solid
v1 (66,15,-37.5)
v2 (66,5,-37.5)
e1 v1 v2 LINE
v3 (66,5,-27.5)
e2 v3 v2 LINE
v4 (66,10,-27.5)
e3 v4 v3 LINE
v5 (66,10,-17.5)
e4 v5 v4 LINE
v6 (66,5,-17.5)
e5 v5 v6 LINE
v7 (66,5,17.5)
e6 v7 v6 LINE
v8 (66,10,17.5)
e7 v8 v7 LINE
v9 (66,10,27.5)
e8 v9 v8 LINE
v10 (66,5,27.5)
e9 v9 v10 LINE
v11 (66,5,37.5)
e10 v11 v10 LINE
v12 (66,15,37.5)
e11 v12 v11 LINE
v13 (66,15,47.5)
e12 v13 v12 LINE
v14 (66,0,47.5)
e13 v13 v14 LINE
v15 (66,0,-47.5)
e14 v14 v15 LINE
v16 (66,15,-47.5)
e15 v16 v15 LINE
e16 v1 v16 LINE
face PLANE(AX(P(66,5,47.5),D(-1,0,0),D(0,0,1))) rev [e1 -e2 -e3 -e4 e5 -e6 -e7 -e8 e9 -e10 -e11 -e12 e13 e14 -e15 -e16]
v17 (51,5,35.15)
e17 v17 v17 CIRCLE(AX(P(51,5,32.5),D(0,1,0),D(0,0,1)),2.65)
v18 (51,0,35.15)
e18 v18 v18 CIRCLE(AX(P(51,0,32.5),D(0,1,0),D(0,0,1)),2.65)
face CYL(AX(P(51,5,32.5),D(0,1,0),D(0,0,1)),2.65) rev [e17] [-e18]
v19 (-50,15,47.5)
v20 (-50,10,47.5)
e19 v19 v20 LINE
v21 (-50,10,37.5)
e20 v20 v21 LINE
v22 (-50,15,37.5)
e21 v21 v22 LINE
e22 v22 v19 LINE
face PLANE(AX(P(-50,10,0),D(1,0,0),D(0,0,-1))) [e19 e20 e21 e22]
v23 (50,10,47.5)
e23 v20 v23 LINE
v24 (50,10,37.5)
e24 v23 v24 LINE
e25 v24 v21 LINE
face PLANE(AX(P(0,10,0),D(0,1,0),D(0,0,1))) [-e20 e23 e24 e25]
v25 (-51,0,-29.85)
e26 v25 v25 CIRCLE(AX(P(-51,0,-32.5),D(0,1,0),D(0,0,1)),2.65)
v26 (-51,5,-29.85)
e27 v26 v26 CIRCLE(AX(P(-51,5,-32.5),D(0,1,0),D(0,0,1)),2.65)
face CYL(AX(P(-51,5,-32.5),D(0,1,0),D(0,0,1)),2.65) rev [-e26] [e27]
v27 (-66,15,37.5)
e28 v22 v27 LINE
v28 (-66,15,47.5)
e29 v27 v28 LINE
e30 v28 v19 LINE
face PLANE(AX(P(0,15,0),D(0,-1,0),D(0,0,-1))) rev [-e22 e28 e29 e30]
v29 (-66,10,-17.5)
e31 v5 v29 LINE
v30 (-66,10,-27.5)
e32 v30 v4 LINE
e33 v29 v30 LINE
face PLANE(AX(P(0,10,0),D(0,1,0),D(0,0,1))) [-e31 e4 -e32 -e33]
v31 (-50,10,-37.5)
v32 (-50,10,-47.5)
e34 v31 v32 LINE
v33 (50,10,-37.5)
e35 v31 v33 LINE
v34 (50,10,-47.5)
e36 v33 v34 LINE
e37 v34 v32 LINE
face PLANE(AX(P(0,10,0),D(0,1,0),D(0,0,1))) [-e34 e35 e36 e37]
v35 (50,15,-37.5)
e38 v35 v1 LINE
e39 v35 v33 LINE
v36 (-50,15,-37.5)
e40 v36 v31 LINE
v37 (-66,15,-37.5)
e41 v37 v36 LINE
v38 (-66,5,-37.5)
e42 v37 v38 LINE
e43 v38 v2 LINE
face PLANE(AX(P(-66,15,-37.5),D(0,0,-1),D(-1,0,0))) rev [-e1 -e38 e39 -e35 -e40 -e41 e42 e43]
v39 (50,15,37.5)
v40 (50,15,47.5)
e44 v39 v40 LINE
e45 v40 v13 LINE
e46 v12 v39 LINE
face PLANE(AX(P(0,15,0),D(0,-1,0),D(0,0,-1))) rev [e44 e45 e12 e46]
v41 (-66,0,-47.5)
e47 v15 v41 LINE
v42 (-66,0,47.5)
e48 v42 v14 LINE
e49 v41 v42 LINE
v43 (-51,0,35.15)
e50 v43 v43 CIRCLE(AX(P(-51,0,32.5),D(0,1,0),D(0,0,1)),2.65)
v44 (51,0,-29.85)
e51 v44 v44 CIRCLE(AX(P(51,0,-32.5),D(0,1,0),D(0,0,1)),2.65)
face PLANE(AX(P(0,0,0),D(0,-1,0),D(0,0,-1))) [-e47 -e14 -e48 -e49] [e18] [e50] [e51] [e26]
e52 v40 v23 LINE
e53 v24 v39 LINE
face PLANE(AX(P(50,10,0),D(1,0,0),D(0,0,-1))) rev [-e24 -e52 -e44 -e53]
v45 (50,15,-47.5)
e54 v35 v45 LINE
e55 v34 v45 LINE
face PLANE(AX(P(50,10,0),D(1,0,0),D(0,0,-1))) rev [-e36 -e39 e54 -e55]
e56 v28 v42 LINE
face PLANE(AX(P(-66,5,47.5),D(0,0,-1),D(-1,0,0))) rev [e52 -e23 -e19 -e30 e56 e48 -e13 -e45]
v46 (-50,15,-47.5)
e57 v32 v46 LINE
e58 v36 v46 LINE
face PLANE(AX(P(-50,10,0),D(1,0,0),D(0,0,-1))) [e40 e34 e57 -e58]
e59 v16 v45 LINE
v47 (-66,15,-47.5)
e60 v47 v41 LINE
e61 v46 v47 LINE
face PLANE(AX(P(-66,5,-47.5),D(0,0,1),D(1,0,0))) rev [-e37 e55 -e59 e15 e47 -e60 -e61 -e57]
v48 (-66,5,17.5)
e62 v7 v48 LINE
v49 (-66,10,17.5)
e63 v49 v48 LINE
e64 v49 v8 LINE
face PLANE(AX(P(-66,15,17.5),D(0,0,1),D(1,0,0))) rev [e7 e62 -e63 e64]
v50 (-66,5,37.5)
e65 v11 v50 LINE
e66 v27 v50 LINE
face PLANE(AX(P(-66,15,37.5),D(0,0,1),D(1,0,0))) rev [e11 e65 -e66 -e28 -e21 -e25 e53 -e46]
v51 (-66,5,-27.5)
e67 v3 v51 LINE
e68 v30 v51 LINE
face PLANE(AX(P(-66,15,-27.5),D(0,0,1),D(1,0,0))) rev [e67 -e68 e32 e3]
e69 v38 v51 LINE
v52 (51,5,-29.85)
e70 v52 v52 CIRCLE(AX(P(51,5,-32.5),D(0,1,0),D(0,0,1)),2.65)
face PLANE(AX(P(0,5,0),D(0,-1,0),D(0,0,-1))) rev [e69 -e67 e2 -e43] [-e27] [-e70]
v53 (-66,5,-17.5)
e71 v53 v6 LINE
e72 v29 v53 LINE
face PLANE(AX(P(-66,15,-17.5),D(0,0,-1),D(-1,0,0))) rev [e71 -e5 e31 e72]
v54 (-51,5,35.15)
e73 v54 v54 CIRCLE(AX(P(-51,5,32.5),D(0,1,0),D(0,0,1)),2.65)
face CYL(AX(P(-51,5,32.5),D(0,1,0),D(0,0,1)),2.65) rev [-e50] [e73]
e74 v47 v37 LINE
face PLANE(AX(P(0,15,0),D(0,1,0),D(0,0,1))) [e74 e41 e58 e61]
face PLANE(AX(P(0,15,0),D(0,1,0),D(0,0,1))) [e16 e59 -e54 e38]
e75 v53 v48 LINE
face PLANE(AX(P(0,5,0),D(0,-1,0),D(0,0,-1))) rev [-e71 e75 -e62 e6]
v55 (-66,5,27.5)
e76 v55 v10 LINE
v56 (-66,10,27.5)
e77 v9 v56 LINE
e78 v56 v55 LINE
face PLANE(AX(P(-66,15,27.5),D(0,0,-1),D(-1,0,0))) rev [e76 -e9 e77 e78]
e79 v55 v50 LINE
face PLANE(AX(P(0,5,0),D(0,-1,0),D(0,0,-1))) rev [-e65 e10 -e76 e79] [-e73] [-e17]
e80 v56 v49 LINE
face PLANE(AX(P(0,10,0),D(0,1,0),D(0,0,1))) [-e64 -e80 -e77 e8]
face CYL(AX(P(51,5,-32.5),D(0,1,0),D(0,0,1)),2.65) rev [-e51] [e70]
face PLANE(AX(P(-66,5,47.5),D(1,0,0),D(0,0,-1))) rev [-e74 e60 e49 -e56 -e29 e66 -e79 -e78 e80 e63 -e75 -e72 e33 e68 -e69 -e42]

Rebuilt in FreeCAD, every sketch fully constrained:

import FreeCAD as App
import Part
import Sketcher
Q = App.Units.Quantity


def add_polygon(sketch, points):
    """Adds a closed chain of lines whose ends are joined by coincident constraints."""
    first, n = sketch.GeometryCount, len(points)
    for a, b in zip(points, points[1:] + points[:1]):
        sketch.addGeometry(Part.LineSegment(App.Vector(*a, 0), App.Vector(*b, 0)), False)
    for i in range(n):
        sketch.addConstraint(Sketcher.Constraint("Coincident", first + i, 2, first + (i + 1) % n, 1))

doc = App.newDocument("Part")
params = doc.addObject("Spreadsheet::Sheet", "Params")
for row, (alias, value) in enumerate([
    ("sketch1_width", "132 mm"),
    ("sketch1_height", "95 mm"),
    ("pad1_length", "5 mm"),
    ("sketch2_diameter", "5.3 mm"),
    ("hole_diameter", "5.3 mm"),
    ("sketch3_width", "132 mm"),
    ("sketch3_height", "10 mm"),
    ("pad2_length", "10 mm"),
    ("sketch4_width", "100 mm"),
    ("sketch4_width2", "16 mm"),
    ("sketch4_height", "10 mm"),
    ("sketch4_height2", "35 mm"),
    ("sketch4_height3", "22.5 mm"),
    ("pocket1_length", "5 mm"),
], start=1):
    params.set(f"A{row}", alias)
    params.set(f"B{row}", "=" + value)
    params.setAlias(f"B{row}", alias)

body = doc.addObject("PartDesign::Body", "Body")

# Sketch on XZ plane
sketch1 = body.newObject("Sketcher::SketchObject", "Sketch")
sketch1.AttachmentSupport = (doc.getObject("XZ_Plane"), [""])
sketch1.MapMode = "FlatFace"
add_polygon(sketch1, [(-66, -47.5), (-66, 47.5), (66, 47.5), (66, -47.5)])  # lines 0-3
sketch1.addConstraint(Sketcher.Constraint("Vertical", 0))
sketch1.addConstraint(Sketcher.Constraint("Horizontal", 1))
sketch1.addConstraint(Sketcher.Constraint("Vertical", 2))
sketch1.addConstraint(Sketcher.Constraint("Horizontal", 3))
sketch1.addConstraint(Sketcher.Constraint("Symmetric", 0, 2, 2, 2, -1, 1))
sketch1.addConstraint(Sketcher.Constraint("DistanceX", 1, 1, 1, 2, Q("132 mm")))
sketch1.addConstraint(Sketcher.Constraint("DistanceY", 0, 1, 0, 2, Q("95 mm")))
sketch1.setExpression("Constraints[9]", "Params.sketch1_width")
sketch1.setExpression("Constraints[10]", "Params.sketch1_height")
pad1 = body.newObject("PartDesign::Pad", "Pad")
pad1.Profile = sketch1
pad1.setExpression("Length", "Params.pad1_length")
pad1.Reversed = True

# Sketch on XZ plane
sketch2 = body.newObject("Sketcher::SketchObject", "Sketch001")
sketch2.AttachmentSupport = (doc.getObject("XZ_Plane"), [""])
sketch2.MapMode = "FlatFace"
sketch2.AttachmentOffset = App.Placement(App.Vector(0, 0, -5), App.Rotation())
sketch2.addGeometry(Part.Circle(App.Vector(-51, -32.5, 0), App.Vector(0, 0, 1), 2.65), False)
sketch2.addGeometry(Part.Circle(App.Vector(51, -32.5, 0), App.Vector(0, 0, 1), 2.65), False)
sketch2.addGeometry(Part.Circle(App.Vector(51, 32.5, 0), App.Vector(0, 0, 1), 2.65), False)
sketch2.addGeometry(Part.Circle(App.Vector(-51, 32.5, 0), App.Vector(0, 0, 1), 2.65), False)
sketch2.addConstraint(Sketcher.Constraint("Equal", 0, 1))
sketch2.addConstraint(Sketcher.Constraint("Equal", 1, 2))
sketch2.addConstraint(Sketcher.Constraint("Equal", 2, 3))
sketch2.addConstraint(Sketcher.Constraint("Symmetric", 0, 3, 2, 3, -1, 1))
sketch2.addConstraint(Sketcher.Constraint("Symmetric", 1, 3, 3, 3, -1, 1))
sketch2.addConstraint(Sketcher.Constraint("Symmetric", 0, 3, 1, 3, -2))
sketch2.addConstraint(Sketcher.Constraint("Diameter", 0, Q("5.3 mm")))
sketch2.addConstraint(Sketcher.Constraint("DistanceX", 0, 3, -1, 1, Q("51 mm")))
sketch2.addConstraint(Sketcher.Constraint("DistanceY", 1, 3, 2, 3, Q("65 mm")))
sketch2.setExpression("Constraints[6]", "Params.sketch2_diameter")
doc.recompute()
hole = body.newObject("PartDesign::Hole", "Hole")
hole.Profile = sketch2
hole.ThreadType = "None"
hole.setExpression("Diameter", "Params.hole_diameter")
hole.DepthType = "ThroughAll"
hole.Reversed = True

# Sketch on XZ plane
sketch3 = body.newObject("Sketcher::SketchObject", "Sketch002")
sketch3.AttachmentSupport = (doc.getObject("XZ_Plane"), [""])
sketch3.MapMode = "FlatFace"
sketch3.AttachmentOffset = App.Placement(App.Vector(0, 0, -5), App.Rotation())
add_polygon(sketch3, [(-66, -27.5), (-66, -17.5), (66, -17.5), (66, -27.5)])  # lines 0-3
add_polygon(sketch3, [(-66, -47.5), (-66, -37.5), (66, -37.5), (66, -47.5)])  # lines 4-7
add_polygon(sketch3, [(-66, 17.5), (-66, 27.5), (66, 27.5), (66, 17.5)])  # lines 8-11
add_polygon(sketch3, [(-66, 37.5), (-66, 47.5), (66, 47.5), (66, 37.5)])  # lines 12-15
sketch3.addConstraint(Sketcher.Constraint("Vertical", 0))
sketch3.addConstraint(Sketcher.Constraint("Horizontal", 1))
sketch3.addConstraint(Sketcher.Constraint("Vertical", 2))
sketch3.addConstraint(Sketcher.Constraint("Horizontal", 3))
sketch3.addConstraint(Sketcher.Constraint("Vertical", 4))
sketch3.addConstraint(Sketcher.Constraint("Horizontal", 5))
sketch3.addConstraint(Sketcher.Constraint("Vertical", 6))
sketch3.addConstraint(Sketcher.Constraint("Horizontal", 7))
sketch3.addConstraint(Sketcher.Constraint("Vertical", 8))
sketch3.addConstraint(Sketcher.Constraint("Horizontal", 9))
sketch3.addConstraint(Sketcher.Constraint("Vertical", 10))
sketch3.addConstraint(Sketcher.Constraint("Horizontal", 11))
sketch3.addConstraint(Sketcher.Constraint("Vertical", 12))
sketch3.addConstraint(Sketcher.Constraint("Horizontal", 13))
sketch3.addConstraint(Sketcher.Constraint("Vertical", 14))
sketch3.addConstraint(Sketcher.Constraint("Horizontal", 15))
sketch3.addConstraint(Sketcher.Constraint("Symmetric", 2, 2, 8, 2, -1, 1))
sketch3.addConstraint(Sketcher.Constraint("Symmetric", 0, 2, 10, 2, -1, 1))
sketch3.addConstraint(Sketcher.Constraint("Symmetric", 6, 2, 12, 2, -1, 1))
sketch3.addConstraint(Sketcher.Constraint("Symmetric", 4, 2, 14, 2, -1, 1))
sketch3.addConstraint(Sketcher.Constraint("Vertical", 3, 2, 4, 2))
sketch3.addConstraint(Sketcher.Constraint("Vertical", 2, 2, 5, 2))
sketch3.addConstraint(Sketcher.Constraint("Vertical", 7, 2, 8, 2))
sketch3.addConstraint(Sketcher.Constraint("Equal", 2, 4))
sketch3.addConstraint(Sketcher.Constraint("DistanceX", 1, 1, 1, 2, Q("132 mm")))
sketch3.addConstraint(Sketcher.Constraint("DistanceY", 0, 1, 0, 2, Q("10 mm")))
sketch3.addConstraint(Sketcher.Constraint("DistanceY", 4, 2, 3, 2, Q("10 mm")))
sketch3.addConstraint(Sketcher.Constraint("DistanceY", 0, 2, 8, 2, Q("45 mm")))
sketch3.setExpression("Constraints[40]", "Params.sketch3_width")
sketch3.setExpression("Constraints[41]", "Params.sketch3_height")
pad2 = body.newObject("PartDesign::Pad", "Pad001")
pad2.Profile = sketch3
pad2.setExpression("Length", "Params.pad2_length")
pad2.Reversed = True

# Sketch on XZ plane
sketch4 = body.newObject("Sketcher::SketchObject", "Sketch003")
sketch4.AttachmentSupport = (doc.getObject("XZ_Plane"), [""])
sketch4.MapMode = "FlatFace"
sketch4.AttachmentOffset = App.Placement(App.Vector(0, 0, -15), App.Rotation())
add_polygon(sketch4, [(50, -50), (-50, -50), (-50, -27.5), (-66, -27.5), (-66, -17.5), (-50, -17.5), (-50, 17.5), (-66, 17.5), (-66, 27.5), (-50, 27.5), (-50, 50), (50, 50), (50, 27.5), (66, 27.5), (66, 17.5), (50, 17.5), (50, -17.5), (66, -17.5), (66, -27.5), (50, -27.5)])  # lines 0-19
sketch4.addConstraint(Sketcher.Constraint("Horizontal", 0))
sketch4.addConstraint(Sketcher.Constraint("Vertical", 1))
sketch4.addConstraint(Sketcher.Constraint("Horizontal", 2))
sketch4.addConstraint(Sketcher.Constraint("Vertical", 3))
sketch4.addConstraint(Sketcher.Constraint("Horizontal", 4))
sketch4.addConstraint(Sketcher.Constraint("Vertical", 5))
sketch4.addConstraint(Sketcher.Constraint("Horizontal", 6))
sketch4.addConstraint(Sketcher.Constraint("Vertical", 7))
sketch4.addConstraint(Sketcher.Constraint("Horizontal", 8))
sketch4.addConstraint(Sketcher.Constraint("Vertical", 9))
sketch4.addConstraint(Sketcher.Constraint("Horizontal", 10))
sketch4.addConstraint(Sketcher.Constraint("Vertical", 11))
sketch4.addConstraint(Sketcher.Constraint("Horizontal", 12))
sketch4.addConstraint(Sketcher.Constraint("Vertical", 13))
sketch4.addConstraint(Sketcher.Constraint("Horizontal", 14))
sketch4.addConstraint(Sketcher.Constraint("Vertical", 15))
sketch4.addConstraint(Sketcher.Constraint("Horizontal", 16))
sketch4.addConstraint(Sketcher.Constraint("Vertical", 17))
sketch4.addConstraint(Sketcher.Constraint("Horizontal", 18))
sketch4.addConstraint(Sketcher.Constraint("Vertical", 19))
sketch4.addConstraint(Sketcher.Constraint("Symmetric", 0, 2, 10, 2, -1, 1))
sketch4.addConstraint(Sketcher.Constraint("Symmetric", 2, 2, 12, 2, -1, 1))
sketch4.addConstraint(Sketcher.Constraint("Symmetric", 4, 2, 14, 2, -1, 1))
sketch4.addConstraint(Sketcher.Constraint("Symmetric", 6, 2, 16, 2, -1, 1))
sketch4.addConstraint(Sketcher.Constraint("Symmetric", 8, 2, 18, 2, -1, 1))
sketch4.addConstraint(Sketcher.Constraint("Symmetric", 8, 2, 11, 2, -2))
sketch4.addConstraint(Sketcher.Constraint("Symmetric", 6, 2, 13, 2, -2))
sketch4.addConstraint(Sketcher.Constraint("Vertical", 1, 2, 4, 2))
sketch4.addConstraint(Sketcher.Constraint("DistanceX", 0, 2, 0, 1, Q("100 mm")))
sketch4.addConstraint(Sketcher.Constraint("DistanceX", 2, 2, 2, 1, Q("16 mm")))
sketch4.addConstraint(Sketcher.Constraint("DistanceY", 3, 1, 3, 2, Q("10 mm")))
sketch4.addConstraint(Sketcher.Constraint("DistanceY", 5, 1, 5, 2, Q("35 mm")))
sketch4.addConstraint(Sketcher.Constraint("DistanceY", 1, 1, 1, 2, Q("22.5 mm")))
sketch4.setExpression("Constraints[48]", "Params.sketch4_width")
sketch4.setExpression("Constraints[49]", "Params.sketch4_width2")
sketch4.setExpression("Constraints[50]", "Params.sketch4_height")
sketch4.setExpression("Constraints[51]", "Params.sketch4_height2")
sketch4.setExpression("Constraints[52]", "Params.sketch4_height3")
pocket1 = body.newObject("PartDesign::Pocket", "Pocket")
pocket1.Profile = sketch4
pocket1.setExpression("Length", "Params.pocket1_length")
pocket1.Reversed = True

doc.recompute()
